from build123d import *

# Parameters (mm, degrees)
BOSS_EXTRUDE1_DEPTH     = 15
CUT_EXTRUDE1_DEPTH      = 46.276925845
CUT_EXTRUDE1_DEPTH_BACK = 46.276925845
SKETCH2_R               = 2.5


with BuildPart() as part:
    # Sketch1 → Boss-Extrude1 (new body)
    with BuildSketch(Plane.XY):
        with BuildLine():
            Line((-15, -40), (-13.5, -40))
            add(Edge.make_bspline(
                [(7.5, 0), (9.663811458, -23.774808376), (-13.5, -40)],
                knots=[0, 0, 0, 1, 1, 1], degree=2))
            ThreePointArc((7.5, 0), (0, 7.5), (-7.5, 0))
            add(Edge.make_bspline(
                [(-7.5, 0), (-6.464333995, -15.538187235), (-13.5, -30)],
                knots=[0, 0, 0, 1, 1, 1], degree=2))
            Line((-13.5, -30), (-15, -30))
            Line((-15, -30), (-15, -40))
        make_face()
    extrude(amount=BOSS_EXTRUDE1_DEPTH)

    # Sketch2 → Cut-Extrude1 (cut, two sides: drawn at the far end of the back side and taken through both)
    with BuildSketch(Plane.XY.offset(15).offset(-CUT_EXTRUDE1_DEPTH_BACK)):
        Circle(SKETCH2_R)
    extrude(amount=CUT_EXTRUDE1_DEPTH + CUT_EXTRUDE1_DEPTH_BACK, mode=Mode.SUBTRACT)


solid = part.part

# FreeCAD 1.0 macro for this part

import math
import FreeCAD as App
import Part
import Sketcher

V = App.Vector

doc = App.newDocument("Part")
params = doc.addObject("Spreadsheet::Sheet", "Params")
for row, (alias, value) in enumerate([
    ("sketch1_width", "1.5 mm"),
    ("pad1_length", "15 mm"),
    ("sketch2_diameter", "5 mm"),
], start=1):
    params.set(f"A{row}", alias)
    params.set(f"B{row}", "=" + value)
    params.setAlias(f"B{row}", alias)

body = doc.addObject("PartDesign::Body", "Body")

sketch1 = doc.addObject("Sketcher::SketchObject", "Sketch")
body.addObject(sketch1)
sketch1.AttachmentSupport = (doc.XY_Plane, [""])
sketch1.MapMode = "FlatFace"
sketch1.addGeometry(Part.LineSegment(V(-15, -40, 0), V(-13.5, -40, 0)), False)
sketch1.addGeometry(Part.BSplineCurve([V(7.5, 0, 0), V(9.663811, -23.774808, 0), V(-13.5, -40, 0)], [3, 3], [0, 1], False, 2, [1, 1, 1], False), False)
sketch1.addGeometry(Part.ArcOfCircle(Part.Circle(V(0, 0, 0), V(0, 0, 1), 7.5), math.radians(0), math.radians(180)), False)
sketch1.addGeometry(Part.BSplineCurve([V(-7.5, 0, 0), V(-6.464334, -15.538187, 0), V(-13.5, -30, 0)], [3, 3], [0, 1], False, 2, [1, 1, 1], False), False)
sketch1.addGeometry(Part.LineSegment(V(-13.5, -30, 0), V(-15, -30, 0)), False)
sketch1.addGeometry(Part.LineSegment(V(-15, -30, 0), V(-15, -40, 0)), False)
sketch1.addConstraint(Sketcher.Constraint("Block", 1))
sketch1.addConstraint(Sketcher.Constraint("Block", 3))
sketch1.addConstraint(Sketcher.Constraint("Coincident", 0, 2, 1, 2))
sketch1.addConstraint(Sketcher.Constraint("Coincident", 1, 1, 2, 1))
sketch1.addConstraint(Sketcher.Constraint("Coincident", 2, 2, 3, 1))
sketch1.addConstraint(Sketcher.Constraint("Coincident", 3, 2, 4, 1))
sketch1.addConstraint(Sketcher.Constraint("Coincident", 4, 2, 5, 1))
sketch1.addConstraint(Sketcher.Constraint("Coincident", 5, 2, 0, 1))
sketch1.addConstraint(Sketcher.Constraint("Horizontal", 0))
sketch1.addConstraint(Sketcher.Constraint("Horizontal", 4))
sketch1.addConstraint(Sketcher.Constraint("Vertical", 5))
sketch1.addConstraint(Sketcher.Constraint("DistanceX", 0, 1, 0, 2, 1.5))
sketch1.addConstraint(Sketcher.Constraint("DistanceY", 0, 2, 2, 3, 40.0))
sketch1.setExpression("Constraints[11]", "Params.sketch1_width")
pad1 = doc.addObject("PartDesign::Pad", "Pad")
body.addObject(pad1)
pad1.Profile = sketch1
pad1.setExpression("Length", "Params.pad1_length")

sketch2 = doc.addObject("Sketcher::SketchObject", "Sketch001")
body.addObject(sketch2)
sketch2.AttachmentSupport = (doc.XY_Plane, [""])
sketch2.MapMode = "FlatFace"
sketch2.AttachmentOffset = App.Placement(V(0, 0, 15), App.Rotation())
sketch2.addGeometry(Part.Circle(V(0, 0, 0), V(0, 0, 1), 2.5), False)
sketch2.addConstraint(Sketcher.Constraint("Coincident", 0, 3, -1, 1))
sketch2.addConstraint(Sketcher.Constraint("Diameter", 0, 5.0))
sketch2.setExpression("Constraints[1]", "Params.sketch2_diameter")
pocket1 = doc.addObject("PartDesign::Pocket", "Pocket")
body.addObject(pocket1)
pocket1.Profile = sketch2
pocket1.Type = "ThroughAll"
pocket1.Midplane = True

doc.recompute()
